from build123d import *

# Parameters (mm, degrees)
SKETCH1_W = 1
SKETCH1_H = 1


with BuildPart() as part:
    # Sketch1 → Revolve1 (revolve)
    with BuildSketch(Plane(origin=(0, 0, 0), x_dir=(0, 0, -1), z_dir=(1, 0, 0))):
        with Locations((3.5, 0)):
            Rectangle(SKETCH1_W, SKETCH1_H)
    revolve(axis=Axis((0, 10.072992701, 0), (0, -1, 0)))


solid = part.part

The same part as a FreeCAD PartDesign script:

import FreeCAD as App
import Part
import Sketcher

V = App.Vector


def add_polygon(sketch, points):
    """Adds a closed chain of lines whose ends are joined by coincident constraints."""
    first, n = sketch.GeometryCount, len(points)
    for a, b in zip(points, points[1:] + points[:1]):
        sketch.addGeometry(Part.LineSegment(App.Vector(*a, 0), App.Vector(*b, 0)), False)
    for i in range(n):
        sketch.addConstraint(Sketcher.Constraint("Coincident", first + i, 2, first + (i + 1) % n, 1))

doc = App.newDocument("Part")
body = doc.addObject("PartDesign::Body", "Body")

# Sketch on YZ plane
sketch1 = body.newObject("Sketcher::SketchObject", "Sketch")
sketch1.AttachmentSupport = (doc.getObject("YZ_Plane"), [""])
sketch1.MapMode = "FlatFace"
add_polygon(sketch1, [(0.5, -3), (-0.5, -3), (-0.5, -4), (0.5, -4)])  # lines 0-3
sketch1.addConstraint(Sketcher.Constraint("Horizontal", 0))
sketch1.addConstraint(Sketcher.Constraint("Vertical", 1))
sketch1.addConstraint(Sketcher.Constraint("Horizontal", 2))
sketch1.addConstraint(Sketcher.Constraint("Vertical", 3))
sketch1.addConstraint(Sketcher.Constraint("Equal", 2, 1))
sketch1.addConstraint(Sketcher.Constraint("DistanceX", 0, 2, 0, 1, 1.0))
sketch1.addConstraint(Sketcher.Constraint("DistanceY", 0, 2, -1, 1, 3.0))
sketch1.addConstraint(Sketcher.Constraint("DistanceX", 0, 2, -1, 1, 0.5))
revolution = body.newObject("PartDesign::Revolution", "Revolution")
revolution.Profile = sketch1
revolution.ReferenceAxis = (sketch1, ["H_Axis"])
revolution.Angle = 360

doc.recompute()
